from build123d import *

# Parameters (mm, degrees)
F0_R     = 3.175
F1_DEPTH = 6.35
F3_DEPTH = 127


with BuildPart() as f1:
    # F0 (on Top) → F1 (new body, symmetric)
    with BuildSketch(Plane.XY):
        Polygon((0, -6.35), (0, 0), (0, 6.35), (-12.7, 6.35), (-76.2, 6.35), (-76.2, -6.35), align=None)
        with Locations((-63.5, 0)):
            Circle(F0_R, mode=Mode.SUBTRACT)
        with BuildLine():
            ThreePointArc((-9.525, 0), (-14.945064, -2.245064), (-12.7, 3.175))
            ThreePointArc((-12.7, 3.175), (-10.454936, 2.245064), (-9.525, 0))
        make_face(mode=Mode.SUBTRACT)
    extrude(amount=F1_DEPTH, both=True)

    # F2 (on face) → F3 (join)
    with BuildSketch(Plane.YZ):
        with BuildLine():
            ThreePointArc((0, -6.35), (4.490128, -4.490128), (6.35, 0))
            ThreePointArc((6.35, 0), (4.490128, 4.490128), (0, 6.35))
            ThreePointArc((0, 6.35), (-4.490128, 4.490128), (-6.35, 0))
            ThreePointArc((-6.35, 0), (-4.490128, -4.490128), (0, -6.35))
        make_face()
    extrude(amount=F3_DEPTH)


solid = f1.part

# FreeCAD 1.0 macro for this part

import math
import FreeCAD as App
import Part
import Sketcher
from FreeCAD import Vector
Q = App.Units.Quantity

doc = App.newDocument("Part")
params = doc.addObject("Spreadsheet::Sheet", "Params")
for row, (alias, value) in enumerate([
    ("sketch1_diameter", "0.25 in"),
    ("sketch1_width", "3 in"),
    ("sketch1_height", "0.5 in"),
    ("pad1_length", "0.5 in"),
    ("sketch2_radius", "0.25 in"),
    ("pad2_length", "5 in"),
], start=1):
    params.set(f"A{row}", alias)
    params.set(f"B{row}", "=" + value)
    params.setAlias(f"B{row}", alias)

body = doc.addObject("PartDesign::Body", "Body")

# Sketch on XY plane
sketch1 = body.newObject("Sketcher::SketchObject", "Sketch")
sketch1.AttachmentSupport = (doc.getObject("XY_Plane"), [""])
sketch1.MapMode = "FlatFace"
sketch1.addGeometry([
    Part.LineSegment(Vector(0, -6.3, 0), Vector(0, 6.3, 0)),  # 0
    Part.LineSegment(Vector(0, 6.3, 0), Vector(-76.2, 6.3, 0)),  # 1
    Part.LineSegment(Vector(-76.2, 6.3, 0), Vector(-76.2, -6.3, 0)),  # 2
    Part.LineSegment(Vector(-76.2, -6.3, 0), Vector(0, -6.3, 0)),  # 3
    Part.Circle(Vector(-63.5, 0, 0), Vector(0, 0, 1), 3.2),  # 4
    Part.ArcOfCircle(Part.Circle(Vector(-12.7, 0, 0), Vector(0, 0, 1), 3.2), math.radians(0), math.radians(90)),  # 5
    Part.ArcOfCircle(Part.Circle(Vector(-12.7, 0, 0), Vector(0, 0, 1), 3.2), math.radians(90), math.radians(360)),  # 6
], False)
sketch1.addConstraint([
    Sketcher.Constraint("Coincident", 0, 2, 1, 1),
    Sketcher.Constraint("Coincident", 1, 2, 2, 1),
    Sketcher.Constraint("Coincident", 2, 2, 3, 1),
    Sketcher.Constraint("Coincident", 3, 2, 0, 1),
    Sketcher.Constraint("Tangent", 5, 1, 6, 2),
    Sketcher.Constraint("Coincident", 6, 1, 5, 2),
    Sketcher.Constraint("Vertical", 0),
    Sketcher.Constraint("Horizontal", 1),
    Sketcher.Constraint("Vertical", 2),
    Sketcher.Constraint("Horizontal", 3),
    Sketcher.Constraint("Equal", 4, 5),
    Sketcher.Constraint("Symmetric", 0, 2, 3, 2, -1, 1),
    Sketcher.Constraint("PointOnObject", 4, 3, -1),
    Sketcher.Constraint("PointOnObject", 5, 3, -1),
    Sketcher.Constraint("PointOnObject", 5, 1, -1),
    Sketcher.Constraint("Vertical", 5, 3, 6, 1),
    Sketcher.Constraint("Diameter", 4, Q("0.25 in")),
    Sketcher.Constraint("DistanceX", 1, 2, 1, 1, Q("3 in")),
    Sketcher.Constraint("DistanceY", 0, 1, 0, 2, Q("0.5 in")),
    Sketcher.Constraint("DistanceX", 4, 3, 5, 3, Q("2 in")),
    Sketcher.Constraint("DistanceX", 4, 3, -1, 1, Q("2.5 in")),
])
sketch1.setExpression("Constraints[16]", "Params.sketch1_diameter")
sketch1.setExpression("Constraints[17]", "Params.sketch1_width")
sketch1.setExpression("Constraints[18]", "Params.sketch1_height")
pad1 = body.newObject("PartDesign::Pad", "Pad")
pad1.Profile = sketch1
pad1.setExpression("Length", "Params.pad1_length")
pad1.Midplane = True

# Sketch on YZ plane
sketch2 = body.newObject("Sketcher::SketchObject", "Sketch001")
sketch2.AttachmentSupport = (doc.getObject("YZ_Plane"), [""])
sketch2.MapMode = "FlatFace"
sketch2.addGeometry([
    Part.ArcOfCircle(Part.Circle(Vector(0, 0, 0), Vector(0, 0, 1), 6), math.radians(-90), math.radians(0)),
    Part.ArcOfCircle(Part.Circle(Vector(0, 0, 0), Vector(0, 0, 1), 6), math.radians(0), math.radians(90)),
    Part.ArcOfCircle(Part.Circle(Vector(0, 0, 0), Vector(0, 0, 1), 6), math.radians(90), math.radians(180)),
    Part.ArcOfCircle(Part.Circle(Vector(0, 0, 0), Vector(0, 0, 1), 6), math.radians(-180), math.radians(-90)),
], False)
sketch2.addConstraint([
    Sketcher.Constraint("Tangent", 0, 2, 1, 1),
    Sketcher.Constraint("Tangent", 1, 2, 2, 1),
    Sketcher.Constraint("Tangent", 2, 2, 3, 1),
    Sketcher.Constraint("Tangent", 3, 2, 0, 1),
    Sketcher.Constraint("Coincident", 0, 3, -1, 1),
    Sketcher.Constraint("Equal", 0, 1),
    Sketcher.Constraint("PointOnObject", 0, 2, -1),
    Sketcher.Constraint("PointOnObject", 1, 2, -2),
    Sketcher.Constraint("PointOnObject", 2, 2, -1),
    Sketcher.Constraint("PointOnObject", 3, 2, -2),
    Sketcher.Constraint("Radius", 0, Q("0.25 in")),
])
sketch2.setExpression("Constraints[10]", "Params.sketch2_radius")
pad2 = body.newObject("PartDesign::Pad", "Pad001")
pad2.Profile = sketch2
pad2.setExpression("Length", "Params.pad2_length")

doc.recompute()
